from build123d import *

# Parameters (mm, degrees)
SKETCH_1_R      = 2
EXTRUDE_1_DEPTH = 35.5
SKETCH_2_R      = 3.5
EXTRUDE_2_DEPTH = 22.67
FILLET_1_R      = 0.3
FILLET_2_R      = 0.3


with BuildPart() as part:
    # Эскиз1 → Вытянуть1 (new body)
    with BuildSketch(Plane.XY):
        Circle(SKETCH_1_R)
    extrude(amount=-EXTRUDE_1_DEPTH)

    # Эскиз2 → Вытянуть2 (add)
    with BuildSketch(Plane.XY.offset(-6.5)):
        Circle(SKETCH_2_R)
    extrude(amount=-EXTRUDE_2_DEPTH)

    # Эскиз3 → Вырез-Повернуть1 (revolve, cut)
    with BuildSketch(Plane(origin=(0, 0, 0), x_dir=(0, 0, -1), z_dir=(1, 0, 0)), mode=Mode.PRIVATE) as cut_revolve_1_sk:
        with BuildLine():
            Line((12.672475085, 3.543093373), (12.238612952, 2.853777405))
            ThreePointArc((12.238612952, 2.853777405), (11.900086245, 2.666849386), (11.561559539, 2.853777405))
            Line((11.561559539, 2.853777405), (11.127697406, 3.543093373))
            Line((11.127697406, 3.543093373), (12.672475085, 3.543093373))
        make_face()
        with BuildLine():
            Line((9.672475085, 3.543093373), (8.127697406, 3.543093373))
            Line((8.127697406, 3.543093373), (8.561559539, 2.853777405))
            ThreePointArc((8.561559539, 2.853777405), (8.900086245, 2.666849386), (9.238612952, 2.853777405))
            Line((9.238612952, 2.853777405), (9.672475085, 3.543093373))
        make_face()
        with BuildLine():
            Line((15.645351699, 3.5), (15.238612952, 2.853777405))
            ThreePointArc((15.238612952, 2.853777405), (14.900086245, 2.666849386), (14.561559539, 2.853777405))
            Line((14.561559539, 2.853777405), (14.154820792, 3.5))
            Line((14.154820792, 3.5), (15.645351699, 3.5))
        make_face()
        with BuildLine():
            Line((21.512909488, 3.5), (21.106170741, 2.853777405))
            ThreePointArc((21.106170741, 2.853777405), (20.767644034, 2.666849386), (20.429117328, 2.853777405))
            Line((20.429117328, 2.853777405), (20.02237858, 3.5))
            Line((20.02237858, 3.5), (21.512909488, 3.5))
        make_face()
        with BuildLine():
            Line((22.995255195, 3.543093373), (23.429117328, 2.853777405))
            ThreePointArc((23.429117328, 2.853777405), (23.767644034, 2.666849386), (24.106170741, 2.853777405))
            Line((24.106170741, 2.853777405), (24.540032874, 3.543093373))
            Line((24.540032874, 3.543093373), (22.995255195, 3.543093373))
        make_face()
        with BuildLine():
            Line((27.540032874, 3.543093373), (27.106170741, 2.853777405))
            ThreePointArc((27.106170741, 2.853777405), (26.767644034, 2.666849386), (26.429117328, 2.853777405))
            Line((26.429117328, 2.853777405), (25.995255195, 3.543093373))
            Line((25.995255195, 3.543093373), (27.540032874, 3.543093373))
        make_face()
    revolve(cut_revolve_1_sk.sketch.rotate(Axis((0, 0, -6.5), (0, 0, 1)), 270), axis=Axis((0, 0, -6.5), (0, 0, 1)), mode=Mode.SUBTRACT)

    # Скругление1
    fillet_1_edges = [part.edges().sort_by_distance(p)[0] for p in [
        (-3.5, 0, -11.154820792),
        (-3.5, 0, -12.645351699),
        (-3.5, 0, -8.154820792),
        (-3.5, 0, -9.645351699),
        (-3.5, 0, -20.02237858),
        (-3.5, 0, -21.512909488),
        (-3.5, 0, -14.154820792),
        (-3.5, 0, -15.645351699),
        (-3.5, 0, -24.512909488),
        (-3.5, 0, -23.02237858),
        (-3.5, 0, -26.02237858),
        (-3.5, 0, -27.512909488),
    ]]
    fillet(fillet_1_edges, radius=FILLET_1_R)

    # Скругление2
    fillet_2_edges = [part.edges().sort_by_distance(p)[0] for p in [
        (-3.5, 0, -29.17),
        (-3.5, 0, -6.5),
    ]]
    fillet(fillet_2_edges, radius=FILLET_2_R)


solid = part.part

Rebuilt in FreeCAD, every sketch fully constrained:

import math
import FreeCAD as App
import Part
import Sketcher

V = App.Vector
Q = App.Units.Quantity


def edges_at(feature, points):
    """Names of the edges that pass closest to the given points."""
    edges = feature.Shape.Edges
    near = lambda p: min(range(len(edges)), key=lambda i: edges[i].distToShape(Part.Vertex(*p))[0])
    return sorted({f"Edge{near(p) + 1}" for p in points})

doc = App.newDocument("Part")
body = doc.addObject("PartDesign::Body", "Body")

# Sketch on XY plane
sketch1 = body.newObject("Sketcher::SketchObject", "Sketch")
sketch1.AttachmentSupport = (doc.getObject("XY_Plane"), [""])
sketch1.MapMode = "FlatFace"
sketch1.addGeometry(Part.Circle(V(0, 0, 0), V(0, 0, 1), 2), False)
sketch1.addConstraint([
    Sketcher.Constraint("Coincident", 0, 3, -1, 1),
    Sketcher.Constraint("Diameter", 0, Q("4 mm")),
])
pad1 = body.newObject("PartDesign::Pad", "Pad")
pad1.Profile = sketch1
pad1.Length = 35.5
pad1.Reversed = True

# Sketch on XY plane
sketch2 = body.newObject("Sketcher::SketchObject", "Sketch001")
sketch2.AttachmentSupport = (doc.getObject("XY_Plane"), [""])
sketch2.MapMode = "FlatFace"
sketch2.AttachmentOffset = App.Placement(V(0, 0, -6.5), App.Rotation())
sketch2.addGeometry(Part.Circle(V(0, 0, 0), V(0, 0, 1), 3.5), False)
sketch2.addConstraint([
    Sketcher.Constraint("Coincident", 0, 3, -1, 1),
    Sketcher.Constraint("Diameter", 0, Q("7 mm")),
])
pad2 = body.newObject("PartDesign::Pad", "Pad001")
pad2.Profile = sketch2
pad2.Length = 22.67
pad2.Reversed = True

# Sketch on YZ plane
sketch3 = body.newObject("Sketcher::SketchObject", "Sketch002")
sketch3.AttachmentSupport = (doc.getObject("YZ_Plane"), [""])
sketch3.MapMode = "FlatFace"
sketch3.addGeometry([
    Part.LineSegment(V(2.853777, -12.238613, 0), V(3.543093, -12.672475, 0)),  # 0
    Part.LineSegment(V(3.543093, -12.672475, 0), V(3.543093, -11.127697, 0)),  # 1
    Part.LineSegment(V(3.543093, -11.127697, 0), V(2.853777, -11.56156, 0)),  # 2
    Part.ArcOfCircle(Part.Circle(V(3.066849, -11.900086, 0), V(0, 0, 1), 0.4), math.radians(122.186708), math.radians(237.813292)),  # 3
    Part.LineSegment(V(3.543093, -9.672475, 0), V(3.543093, -8.127697, 0)),  # 4
    Part.LineSegment(V(3.543093, -8.127697, 0), V(2.853777, -8.56156, 0)),  # 5
    Part.ArcOfCircle(Part.Circle(V(3.066849, -8.900086, 0), V(0, 0, 1), 0.4), math.radians(122.186708), math.radians(237.813292)),  # 6
    Part.LineSegment(V(2.853777, -9.238613, 0), V(3.543093, -9.672475, 0)),  # 7
    Part.LineSegment(V(2.853777, -15.238613, 0), V(3.5, -15.645352, 0)),  # 8
    Part.LineSegment(V(3.5, -15.645352, 0), V(3.5, -14.154821, 0)),  # 9
    Part.LineSegment(V(3.5, -14.154821, 0), V(2.853777, -14.56156, 0)),  # 10
    Part.ArcOfCircle(Part.Circle(V(3.066849, -14.900086, 0), V(0, 0, 1), 0.4), math.radians(122.186708), math.radians(237.813292)),  # 11
    Part.LineSegment(V(2.853777, -21.106171, 0), V(3.5, -21.512909, 0)),  # 12
    Part.LineSegment(V(3.5, -21.512909, 0), V(3.5, -20.022379, 0)),  # 13
    Part.LineSegment(V(3.5, -20.022379, 0), V(2.853777, -20.429117, 0)),  # 14
    Part.ArcOfCircle(Part.Circle(V(3.066849, -20.767644, 0), V(0, 0, 1), 0.4), math.radians(122.186708), math.radians(237.813292)),  # 15
    Part.LineSegment(V(3.543093, -22.995255, 0), V(2.853777, -23.429117, 0)),  # 16
    Part.ArcOfCircle(Part.Circle(V(3.066849, -23.767644, 0), V(0, 0, 1), 0.4), math.radians(122.186708), math.radians(237.813292)),  # 17
    Part.LineSegment(V(2.853777, -24.106171, 0), V(3.543093, -24.540033, 0)),  # 18
    Part.LineSegment(V(3.543093, -24.540033, 0), V(3.543093, -22.995255, 0)),  # 19
    Part.LineSegment(V(2.853777, -27.106171, 0), V(3.543093, -27.540033, 0)),  # 20
    Part.LineSegment(V(3.543093, -27.540033, 0), V(3.543093, -25.995255, 0)),  # 21
    Part.LineSegment(V(3.543093, -25.995255, 0), V(2.853777, -26.429117, 0)),  # 22
    Part.ArcOfCircle(Part.Circle(V(3.066849, -26.767644, 0), V(0, 0, 1), 0.4), math.radians(122.186708), math.radians(237.813292)),  # 23
], False)
sketch3.addConstraint([
    Sketcher.Constraint("Coincident", 0, 2, 1, 1),
    Sketcher.Constraint("Coincident", 1, 2, 2, 1),
    Sketcher.Constraint("Tangent", 2, 2, 3, 1),
    Sketcher.Constraint("Tangent", 3, 2, 0, 1),
    Sketcher.Constraint("Coincident", 4, 2, 5, 1),
    Sketcher.Constraint("Tangent", 5, 2, 6, 1),
    Sketcher.Constraint("Tangent", 6, 2, 7, 1),
    Sketcher.Constraint("Coincident", 7, 2, 4, 1),
    Sketcher.Constraint("Coincident", 8, 2, 9, 1),
    Sketcher.Constraint("Coincident", 9, 2, 10, 1),
    Sketcher.Constraint("Tangent", 10, 2, 11, 1),
    Sketcher.Constraint("Tangent", 11, 2, 8, 1),
    Sketcher.Constraint("Coincident", 12, 2, 13, 1),
    Sketcher.Constraint("Coincident", 13, 2, 14, 1),
    Sketcher.Constraint("Tangent", 14, 2, 15, 1),
    Sketcher.Constraint("Tangent", 15, 2, 12, 1),
    Sketcher.Constraint("Tangent", 16, 2, 17, 1),
    Sketcher.Constraint("Tangent", 17, 2, 18, 1),
    Sketcher.Constraint("Coincident", 18, 2, 19, 1),
    Sketcher.Constraint("Coincident", 19, 2, 16, 1),
    Sketcher.Constraint("Coincident", 20, 2, 21, 1),
    Sketcher.Constraint("Coincident", 21, 2, 22, 1),
    Sketcher.Constraint("Tangent", 22, 2, 23, 1),
    Sketcher.Constraint("Tangent", 23, 2, 20, 1),
    Sketcher.Constraint("Vertical", 1),
    Sketcher.Constraint("Vertical", 4),
    Sketcher.Constraint("Vertical", 9),
    Sketcher.Constraint("Vertical", 13),
    Sketcher.Constraint("Vertical", 19),
    Sketcher.Constraint("Vertical", 21),
    Sketcher.Constraint("Equal", 3, 6),
    Sketcher.Constraint("Equal", 6, 11),
    Sketcher.Constraint("Equal", 11, 15),
    Sketcher.Constraint("Equal", 15, 17),
    Sketcher.Constraint("Equal", 17, 23),
    Sketcher.Constraint("Parallel", 2, 5),
    Sketcher.Constraint("Parallel", 0, 7),
    Sketcher.Constraint("Parallel", 7, 8),
    Sketcher.Constraint("Parallel", 5, 10),
    Sketcher.Constraint("Parallel", 8, 12),
    Sketcher.Constraint("Parallel", 10, 14),
    Sketcher.Constraint("Parallel", 14, 16),
    Sketcher.Constraint("Parallel", 12, 18),
    Sketcher.Constraint("Parallel", 18, 20),
    Sketcher.Constraint("Parallel", 16, 22),
    Sketcher.Constraint("Vertical", 3, 3, 6, 3),
    Sketcher.Constraint("Vertical", 6, 3, 11, 3),
    Sketcher.Constraint("Vertical", 11, 3, 15, 3),
    Sketcher.Constraint("Vertical", 15, 3, 17, 3),
    Sketcher.Constraint("Vertical", 17, 3, 23, 3),
    Sketcher.Constraint("Vertical", 2, 2, 3, 2),
    Sketcher.Constraint("Vertical", 1, 2, 4, 2),
    Sketcher.Constraint("Vertical", 9, 2, 12, 2),
    Sketcher.Constraint("Vertical", 7, 2, 18, 2),
    Sketcher.Constraint("Vertical", 19, 2, 20, 2),
    Sketcher.Constraint("Radius", 3, Q("0.4 mm")),
    Sketcher.Constraint("DistanceY", 3, 3, 6, 3, Q("3 mm")),
    Sketcher.Constraint("DistanceY", 11, 3, 3, 3, Q("3 mm")),
    Sketcher.Constraint("DistanceY", 17, 3, 15, 3, Q("3 mm")),
    Sketcher.Constraint("DistanceY", 23, 3, 17, 3, Q("3 mm")),
    Sketcher.Constraint("DistanceX", -1, 1, 8, 2, Q("3.5 mm")),
    Sketcher.Constraint("DistanceY", 9, 1, 9, 2, Q("1.490531 mm")),
    Sketcher.Constraint("Distance", 0, Q("0.814489 mm")),
    Sketcher.Constraint("Distance", 8, Q("0.763571 mm")),
    Sketcher.Constraint("DistanceY", 2, 2, -1, 1, Q("11.56156 mm")),
    Sketcher.Constraint("DistanceY", 12, 2, -1, 1, Q("21.512909 mm")),
])
groove = body.newObject("PartDesign::Groove", "Groove")
groove.Profile = sketch3
groove.ReferenceAxis = (sketch3, ["V_Axis"])
groove.Angle = 360
doc.recompute()

fillet = body.newObject("PartDesign::Fillet", "Fillet")
fillet.Base = (groove, edges_at(groove, [
    (-3.5, 0, -11.155),
    (-3.5, 0, -12.645),
    (-3.5, 0, -8.155),
    (-3.5, 0, -9.645),
    (-3.5, 0, -20.022),
    (-3.5, 0, -21.513),
    (-3.5, 0, -14.155),
    (-3.5, 0, -15.645),
    (-3.5, 0, -24.513),
    (-3.5, 0, -23.022),
    (-3.5, 0, -26.022),
    (-3.5, 0, -27.513),
]))
fillet.Radius = 0.3
doc.recompute()

fillet2 = body.newObject("PartDesign::Fillet", "Fillet001")
fillet2.Base = (fillet, edges_at(fillet, [(-3.5, 0, -29.17), (-3.5, 0, -6.5)]))
fillet2.Radius = 0.3

doc.recompute()
